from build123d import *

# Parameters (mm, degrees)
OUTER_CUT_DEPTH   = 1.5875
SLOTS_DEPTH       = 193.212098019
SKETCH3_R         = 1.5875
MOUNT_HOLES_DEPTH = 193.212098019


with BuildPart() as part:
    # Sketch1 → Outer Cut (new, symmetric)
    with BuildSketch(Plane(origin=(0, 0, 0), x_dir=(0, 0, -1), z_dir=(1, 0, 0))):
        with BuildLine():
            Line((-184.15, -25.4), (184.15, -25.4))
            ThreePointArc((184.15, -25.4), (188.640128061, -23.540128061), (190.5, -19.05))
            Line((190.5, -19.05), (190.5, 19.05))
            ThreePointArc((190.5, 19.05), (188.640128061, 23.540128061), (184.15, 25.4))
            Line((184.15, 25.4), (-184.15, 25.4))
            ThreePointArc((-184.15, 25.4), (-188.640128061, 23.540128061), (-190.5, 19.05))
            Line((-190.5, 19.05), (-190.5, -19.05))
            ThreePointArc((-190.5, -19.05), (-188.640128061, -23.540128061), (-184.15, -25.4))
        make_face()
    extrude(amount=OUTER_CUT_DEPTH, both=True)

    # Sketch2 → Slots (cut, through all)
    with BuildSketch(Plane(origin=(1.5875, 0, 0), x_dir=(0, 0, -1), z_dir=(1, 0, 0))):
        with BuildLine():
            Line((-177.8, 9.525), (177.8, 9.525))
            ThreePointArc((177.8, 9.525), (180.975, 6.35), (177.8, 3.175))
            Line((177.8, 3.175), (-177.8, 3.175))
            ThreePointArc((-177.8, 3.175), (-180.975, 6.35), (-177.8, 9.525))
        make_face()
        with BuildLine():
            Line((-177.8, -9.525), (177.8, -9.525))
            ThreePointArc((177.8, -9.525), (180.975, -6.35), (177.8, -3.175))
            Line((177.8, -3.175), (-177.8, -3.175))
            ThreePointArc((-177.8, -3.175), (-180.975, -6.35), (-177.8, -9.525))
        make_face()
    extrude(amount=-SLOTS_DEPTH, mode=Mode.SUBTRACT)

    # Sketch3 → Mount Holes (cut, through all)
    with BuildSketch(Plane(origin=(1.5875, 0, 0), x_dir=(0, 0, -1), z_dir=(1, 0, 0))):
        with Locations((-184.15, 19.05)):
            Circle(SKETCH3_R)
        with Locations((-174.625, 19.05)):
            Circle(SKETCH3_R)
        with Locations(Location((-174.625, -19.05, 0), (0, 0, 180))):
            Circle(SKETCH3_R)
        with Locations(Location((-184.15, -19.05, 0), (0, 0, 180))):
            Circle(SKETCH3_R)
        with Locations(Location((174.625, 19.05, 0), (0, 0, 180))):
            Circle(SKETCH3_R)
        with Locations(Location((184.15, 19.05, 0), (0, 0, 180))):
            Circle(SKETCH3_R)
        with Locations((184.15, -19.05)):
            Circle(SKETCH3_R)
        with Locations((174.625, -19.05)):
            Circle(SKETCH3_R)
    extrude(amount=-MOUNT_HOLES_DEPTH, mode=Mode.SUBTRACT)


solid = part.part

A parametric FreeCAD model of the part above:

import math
import FreeCAD as App
import Part
import Sketcher

V = App.Vector
Q = App.Units.Quantity

doc = App.newDocument("Part")
params = doc.addObject("Spreadsheet::Sheet", "Params")
for row, (alias, value) in enumerate([
    ("sketch1_radius", "0.25 in"),
    ("sketch1_width", "1.5 in"),
    ("sketch1_height", "14.5 in"),
    ("pad1_length", "0.125 in"),
    ("sketch2_height", "14 in"),
    ("sketch2_radius", "0.125 in"),
    ("sketch3_diameter", "0.125 in"),
], start=1):
    params.set(f"A{row}", alias)
    params.set(f"B{row}", "=" + value)
    params.setAlias(f"B{row}", alias)

body = doc.addObject("PartDesign::Body", "Body")

# Sketch on YZ plane
sketch1 = body.newObject("Sketcher::SketchObject", "Sketch")
sketch1.AttachmentSupport = (doc.getObject("YZ_Plane"), [""])
sketch1.MapMode = "FlatFace"
sketch1.addGeometry([
    Part.LineSegment(V(-25.4, 184.15, 0), V(-25.4, -184.15, 0)),  # 0
    Part.ArcOfCircle(Part.Circle(V(-19.05, -184.15, 0), V(0, 0, 1), 6.35), math.radians(180), math.radians(270)),  # 1
    Part.LineSegment(V(-19.05, -190.5, 0), V(19.05, -190.5, 0)),  # 2
    Part.ArcOfCircle(Part.Circle(V(19.05, -184.15, 0), V(0, 0, 1), 6.35), math.radians(-90), math.radians(0)),  # 3
    Part.LineSegment(V(25.4, -184.15, 0), V(25.4, 184.15, 0)),  # 4
    Part.ArcOfCircle(Part.Circle(V(19.05, 184.15, 0), V(0, 0, 1), 6.35), math.radians(0), math.radians(90)),  # 5
    Part.LineSegment(V(19.05, 190.5, 0), V(-19.05, 190.5, 0)),  # 6
    Part.ArcOfCircle(Part.Circle(V(-19.05, 184.15, 0), V(0, 0, 1), 6.35), math.radians(90), math.radians(180)),  # 7
], False)
sketch1.addConstraint([
    Sketcher.Constraint("Tangent", 0, 2, 1, 1),
    Sketcher.Constraint("Tangent", 1, 2, 2, 1),
    Sketcher.Constraint("Tangent", 2, 2, 3, 1),
    Sketcher.Constraint("Tangent", 3, 2, 4, 1),
    Sketcher.Constraint("Tangent", 4, 2, 5, 1),
    Sketcher.Constraint("Tangent", 5, 2, 6, 1),
    Sketcher.Constraint("Tangent", 6, 2, 7, 1),
    Sketcher.Constraint("Tangent", 7, 2, 0, 1),
    Sketcher.Constraint("Vertical", 0),
    Sketcher.Constraint("Horizontal", 2),
    Sketcher.Constraint("Vertical", 4),
    Sketcher.Constraint("Horizontal", 6),
    Sketcher.Constraint("Equal", 1, 3),
    Sketcher.Constraint("Equal", 3, 5),
    Sketcher.Constraint("Equal", 5, 7),
    Sketcher.Constraint("Symmetric", 1, 3, 5, 3, -1, 1),
    Sketcher.Constraint("Radius", 1, Q("0.25 in")),
    Sketcher.Constraint("DistanceX", 2, 1, 2, 2, Q("1.5 in")),
    Sketcher.Constraint("DistanceY", 0, 2, 0, 1, Q("14.5 in")),
])
sketch1.setExpression("Constraints[16]", "Params.sketch1_radius")
sketch1.setExpression("Constraints[17]", "Params.sketch1_width")
sketch1.setExpression("Constraints[18]", "Params.sketch1_height")
pad1 = body.newObject("PartDesign::Pad", "Pad")
pad1.Profile = sketch1
pad1.setExpression("Length", "Params.pad1_length")
pad1.Midplane = True

# Sketch on YZ plane
sketch2 = body.newObject("Sketcher::SketchObject", "Sketch001")
sketch2.AttachmentSupport = (doc.getObject("YZ_Plane"), [""])
sketch2.MapMode = "FlatFace"
sketch2.AttachmentOffset = App.Placement(V(0, 0, 0.0625 * 25.4), App.Rotation())
sketch2.addGeometry([
    Part.LineSegment(V(9.525, -177.8, 0), V(9.525, 177.8, 0)),  # 0
    Part.ArcOfCircle(Part.Circle(V(6.35, 177.8, 0), V(0, 0, 1), 3.175), math.radians(0), math.radians(180)),  # 1
    Part.LineSegment(V(3.175, 177.8, 0), V(3.175, -177.8, 0)),  # 2
    Part.ArcOfCircle(Part.Circle(V(6.35, -177.8, 0), V(0, 0, 1), 3.175), math.radians(180), math.radians(360)),  # 3
    Part.LineSegment(V(-9.525, 177.8, 0), V(-9.525, -177.8, 0)),  # 4
    Part.ArcOfCircle(Part.Circle(V(-6.35, -177.8, 0), V(0, 0, 1), 3.175), math.radians(180), math.radians(360)),  # 5
    Part.LineSegment(V(-3.175, -177.8, 0), V(-3.175, 177.8, 0)),  # 6
    Part.ArcOfCircle(Part.Circle(V(-6.35, 177.8, 0), V(0, 0, 1), 3.175), math.radians(0), math.radians(180)),  # 7
], False)
sketch2.addConstraint([
    Sketcher.Constraint("Tangent", 0, 2, 1, 1),
    Sketcher.Constraint("Tangent", 1, 2, 2, 1),
    Sketcher.Constraint("Tangent", 2, 2, 3, 1),
    Sketcher.Constraint("Tangent", 3, 2, 0, 1),
    Sketcher.Constraint("Tangent", 4, 2, 5, 1),
    Sketcher.Constraint("Tangent", 5, 2, 6, 1),
    Sketcher.Constraint("Tangent", 6, 2, 7, 1),
    Sketcher.Constraint("Tangent", 7, 2, 4, 1),
    Sketcher.Constraint("Vertical", 0),
    Sketcher.Constraint("Vertical", 2),
    Sketcher.Constraint("Vertical", 4),
    Sketcher.Constraint("Vertical", 6),
    Sketcher.Constraint("Equal", 3, 5),
    Sketcher.Constraint("Symmetric", 1, 3, 5, 3, -1, 1),
    Sketcher.Constraint("Horizontal", 3, 3, 5, 3),
    Sketcher.Constraint("Horizontal", 1, 3, 7, 3),
    Sketcher.Constraint("DistanceY", 0, 1, 0, 2, Q("14 in")),
    Sketcher.Constraint("Radius", 1, Q("0.125 in")),
    Sketcher.Constraint("DistanceX", 5, 3, 3, 3, Q("0.5 in")),
])
sketch2.setExpression("Constraints[16]", "Params.sketch2_height")
sketch2.setExpression("Constraints[17]", "Params.sketch2_radius")
pocket1 = body.newObject("PartDesign::Pocket", "Pocket")
pocket1.Profile = sketch2
pocket1.Type = "ThroughAll"

# Sketch on YZ plane
sketch3 = body.newObject("Sketcher::SketchObject", "Sketch002")
sketch3.AttachmentSupport = (doc.getObject("YZ_Plane"), [""])
sketch3.MapMode = "FlatFace"
sketch3.AttachmentOffset = App.Placement(V(0, 0, 0.0625 * 25.4), App.Rotation())
sketch3.addGeometry([
    Part.Circle(V(19.05, 184.15, 0), V(0, 0, 1), 1.5875),  # 0
    Part.Circle(V(19.05, 174.625, 0), V(0, 0, 1), 1.5875),  # 1
    Part.Circle(V(-19.05, 174.625, 0), V(0, 0, 1), 1.5875),  # 2
    Part.Circle(V(-19.05, 184.15, 0), V(0, 0, 1), 1.5875),  # 3
    Part.Circle(V(19.05, -174.625, 0), V(0, 0, 1), 1.5875),  # 4
    Part.Circle(V(19.05, -184.15, 0), V(0, 0, 1), 1.5875),  # 5
    Part.Circle(V(-19.05, -184.15, 0), V(0, 0, 1), 1.5875),  # 6
    Part.Circle(V(-19.05, -174.625, 0), V(0, 0, 1), 1.5875),  # 7
], False)
sketch3.addConstraint([
    Sketcher.Constraint("Equal", 0, 1),
    Sketcher.Constraint("Equal", 1, 2),
    Sketcher.Constraint("Equal", 2, 3),
    Sketcher.Constraint("Equal", 3, 4),
    Sketcher.Constraint("Equal", 4, 5),
    Sketcher.Constraint("Equal", 5, 6),
    Sketcher.Constraint("Equal", 6, 7),
    Sketcher.Constraint("Symmetric", 2, 3, 4, 3, -1, 1),
    Sketcher.Constraint("Symmetric", 3, 3, 5, 3, -1, 1),
    Sketcher.Constraint("Symmetric", 0, 3, 6, 3, -1, 1),
    Sketcher.Constraint("Symmetric", 1, 3, 7, 3, -1, 1),
    Sketcher.Constraint("Symmetric", 1, 3, 2, 3, -2),
    Sketcher.Constraint("Symmetric", 0, 3, 3, 3, -2),
    Sketcher.Constraint("Vertical", 0, 3, 1, 3),
    Sketcher.Constraint("Diameter", 0, Q("0.125 in")),
    Sketcher.Constraint("DistanceX", 2, 3, 1, 3, Q("1.5 in")),
    Sketcher.Constraint("DistanceY", 5, 3, 0, 3, Q("14.5 in")),
    Sketcher.Constraint("DistanceY", 4, 3, 1, 3, Q("13.75 in")),
])
sketch3.setExpression("Constraints[14]", "Params.sketch3_diameter")
pocket2 = body.newObject("PartDesign::Pocket", "Pocket001")
pocket2.Profile = sketch3
pocket2.Type = "ThroughAll"

doc.recompute()
